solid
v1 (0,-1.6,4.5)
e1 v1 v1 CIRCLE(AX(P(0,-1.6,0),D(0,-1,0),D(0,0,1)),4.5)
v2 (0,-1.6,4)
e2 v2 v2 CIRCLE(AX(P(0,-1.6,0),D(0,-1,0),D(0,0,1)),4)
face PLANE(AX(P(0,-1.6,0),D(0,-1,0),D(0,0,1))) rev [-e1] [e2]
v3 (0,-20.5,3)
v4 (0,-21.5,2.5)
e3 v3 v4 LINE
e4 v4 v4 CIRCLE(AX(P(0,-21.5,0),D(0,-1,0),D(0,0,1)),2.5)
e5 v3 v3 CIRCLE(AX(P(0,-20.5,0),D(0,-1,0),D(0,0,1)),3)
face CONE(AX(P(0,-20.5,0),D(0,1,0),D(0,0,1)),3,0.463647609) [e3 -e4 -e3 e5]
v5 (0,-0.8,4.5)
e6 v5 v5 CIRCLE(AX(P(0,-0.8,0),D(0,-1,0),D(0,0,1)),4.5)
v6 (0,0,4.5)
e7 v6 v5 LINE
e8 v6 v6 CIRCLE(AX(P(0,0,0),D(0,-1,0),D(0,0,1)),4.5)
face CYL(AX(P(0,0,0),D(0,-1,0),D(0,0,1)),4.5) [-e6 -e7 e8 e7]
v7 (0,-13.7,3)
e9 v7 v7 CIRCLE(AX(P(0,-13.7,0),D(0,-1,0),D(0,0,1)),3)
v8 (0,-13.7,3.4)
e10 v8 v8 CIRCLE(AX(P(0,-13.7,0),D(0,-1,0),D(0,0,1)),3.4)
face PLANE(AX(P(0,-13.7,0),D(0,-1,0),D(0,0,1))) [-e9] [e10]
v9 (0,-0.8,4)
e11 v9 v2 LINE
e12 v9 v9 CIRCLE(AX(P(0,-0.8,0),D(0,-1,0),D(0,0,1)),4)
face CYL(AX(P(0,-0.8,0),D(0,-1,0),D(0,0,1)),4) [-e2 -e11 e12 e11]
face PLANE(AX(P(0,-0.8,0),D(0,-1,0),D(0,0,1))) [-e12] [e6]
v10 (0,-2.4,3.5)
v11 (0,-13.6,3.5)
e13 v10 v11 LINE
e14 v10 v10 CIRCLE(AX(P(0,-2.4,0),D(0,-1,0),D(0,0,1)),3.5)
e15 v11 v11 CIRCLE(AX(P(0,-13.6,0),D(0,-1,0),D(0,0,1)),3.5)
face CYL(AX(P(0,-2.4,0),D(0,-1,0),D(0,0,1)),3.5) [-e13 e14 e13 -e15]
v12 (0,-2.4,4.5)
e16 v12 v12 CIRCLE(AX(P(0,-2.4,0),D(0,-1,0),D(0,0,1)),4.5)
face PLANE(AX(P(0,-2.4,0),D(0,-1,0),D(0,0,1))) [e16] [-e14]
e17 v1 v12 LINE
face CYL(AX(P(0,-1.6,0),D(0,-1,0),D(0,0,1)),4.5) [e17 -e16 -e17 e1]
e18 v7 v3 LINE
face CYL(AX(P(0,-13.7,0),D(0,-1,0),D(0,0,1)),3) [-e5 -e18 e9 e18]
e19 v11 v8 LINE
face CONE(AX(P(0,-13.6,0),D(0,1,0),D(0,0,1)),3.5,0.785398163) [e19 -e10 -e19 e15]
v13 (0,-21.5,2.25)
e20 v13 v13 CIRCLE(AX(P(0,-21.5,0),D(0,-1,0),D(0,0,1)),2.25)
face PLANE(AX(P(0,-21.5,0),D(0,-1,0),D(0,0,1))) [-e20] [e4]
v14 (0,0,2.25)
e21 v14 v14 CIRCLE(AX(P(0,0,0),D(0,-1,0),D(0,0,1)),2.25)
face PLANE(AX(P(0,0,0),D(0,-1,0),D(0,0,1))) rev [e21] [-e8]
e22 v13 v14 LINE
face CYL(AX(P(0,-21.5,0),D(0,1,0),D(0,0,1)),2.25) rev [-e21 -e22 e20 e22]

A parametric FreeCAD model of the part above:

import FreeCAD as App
import Part
import Sketcher
Q = App.Units.Quantity


def edges_at(feature, points):
    """Names of the edges that pass closest to the given points."""
    edges = feature.Shape.Edges
    near = lambda p: min(range(len(edges)), key=lambda i: edges[i].distToShape(Part.Vertex(*p))[0])
    return sorted({f"Edge{near(p) + 1}" for p in points})


def add_polygon(sketch, points):
    """Adds a closed chain of lines whose ends are joined by coincident constraints."""
    first, n = sketch.GeometryCount, len(points)
    for a, b in zip(points, points[1:] + points[:1]):
        sketch.addGeometry(Part.LineSegment(App.Vector(*a, 0), App.Vector(*b, 0)), False)
    for i in range(n):
        sketch.addConstraint(Sketcher.Constraint("Coincident", first + i, 2, first + (i + 1) % n, 1))

doc = App.newDocument("Part")
body = doc.addObject("PartDesign::Body", "Body")

# Sketch on YZ plane
sketch1 = body.newObject("Sketcher::SketchObject", "Sketch")
sketch1.AttachmentSupport = (doc.getObject("YZ_Plane"), [""])
sketch1.MapMode = "FlatFace"
add_polygon(sketch1, [(-21.5, 2.25), (0, 2.25), (0, 4.5), (-0.8, 4.5), (-0.8, 4), (-1.6, 4), (-1.6, 4.5), (-2.4, 4.5), (-2.4, 3.5), (-13.7, 3.5), (-13.7, 3), (-20.5, 3), (-21.5, 2.5)])  # lines 0-12
sketch1.addConstraint([
    Sketcher.Constraint("Horizontal", 0),
    Sketcher.Constraint("Vertical", 1),
    Sketcher.Constraint("Horizontal", 2),
    Sketcher.Constraint("Vertical", 3),
    Sketcher.Constraint("Horizontal", 4),
    Sketcher.Constraint("Vertical", 5),
    Sketcher.Constraint("Horizontal", 6),
    Sketcher.Constraint("Vertical", 7),
    Sketcher.Constraint("Horizontal", 8),
    Sketcher.Constraint("Vertical", 9),
    Sketcher.Constraint("Horizontal", 10),
    Sketcher.Constraint("Vertical", 12),
    Sketcher.Constraint("PointOnObject", 0, 2, -2),
    Sketcher.Constraint("Horizontal", 2, 2, 5, 2),
    Sketcher.Constraint("Equal", 2, 4),
    Sketcher.Constraint("Equal", 4, 6),
    Sketcher.Constraint("Equal", 5, 9),
    Sketcher.Constraint("DistanceY", 7, 2, 7, 1, Q("1 mm")),
    Sketcher.Constraint("DistanceX", 0, 1, 0, 2, Q("21.5 mm")),
    Sketcher.Constraint("DistanceX", 2, 2, 2, 1, Q("0.8 mm")),
    Sketcher.Constraint("DistanceX", 8, 2, 8, 1, Q("11.3 mm")),
    Sketcher.Constraint("DistanceX", 10, 2, 10, 1, Q("6.8 mm")),
    Sketcher.Constraint("DistanceY", 3, 2, 3, 1, Q("0.5 mm")),
    Sketcher.Constraint("DistanceY", -1, 1, 3, 2, Q("4 mm")),
    Sketcher.Constraint("DistanceY", 11, 2, 8, 2, Q("1 mm")),
    Sketcher.Constraint("DistanceY", 1, 1, 1, 2, Q("2.25 mm")),
])
revolution = body.newObject("PartDesign::Revolution", "Revolution")
revolution.Profile = sketch1
revolution.ReferenceAxis = (sketch1, ["H_Axis"])
revolution.Angle = 360
doc.recompute()

chamfer = body.newObject("PartDesign::Chamfer", "Chamfer")
chamfer.Base = (revolution, edges_at(revolution, [(0, -13.7, -3.5)]))
chamfer.Size = 0.1

doc.recompute()
